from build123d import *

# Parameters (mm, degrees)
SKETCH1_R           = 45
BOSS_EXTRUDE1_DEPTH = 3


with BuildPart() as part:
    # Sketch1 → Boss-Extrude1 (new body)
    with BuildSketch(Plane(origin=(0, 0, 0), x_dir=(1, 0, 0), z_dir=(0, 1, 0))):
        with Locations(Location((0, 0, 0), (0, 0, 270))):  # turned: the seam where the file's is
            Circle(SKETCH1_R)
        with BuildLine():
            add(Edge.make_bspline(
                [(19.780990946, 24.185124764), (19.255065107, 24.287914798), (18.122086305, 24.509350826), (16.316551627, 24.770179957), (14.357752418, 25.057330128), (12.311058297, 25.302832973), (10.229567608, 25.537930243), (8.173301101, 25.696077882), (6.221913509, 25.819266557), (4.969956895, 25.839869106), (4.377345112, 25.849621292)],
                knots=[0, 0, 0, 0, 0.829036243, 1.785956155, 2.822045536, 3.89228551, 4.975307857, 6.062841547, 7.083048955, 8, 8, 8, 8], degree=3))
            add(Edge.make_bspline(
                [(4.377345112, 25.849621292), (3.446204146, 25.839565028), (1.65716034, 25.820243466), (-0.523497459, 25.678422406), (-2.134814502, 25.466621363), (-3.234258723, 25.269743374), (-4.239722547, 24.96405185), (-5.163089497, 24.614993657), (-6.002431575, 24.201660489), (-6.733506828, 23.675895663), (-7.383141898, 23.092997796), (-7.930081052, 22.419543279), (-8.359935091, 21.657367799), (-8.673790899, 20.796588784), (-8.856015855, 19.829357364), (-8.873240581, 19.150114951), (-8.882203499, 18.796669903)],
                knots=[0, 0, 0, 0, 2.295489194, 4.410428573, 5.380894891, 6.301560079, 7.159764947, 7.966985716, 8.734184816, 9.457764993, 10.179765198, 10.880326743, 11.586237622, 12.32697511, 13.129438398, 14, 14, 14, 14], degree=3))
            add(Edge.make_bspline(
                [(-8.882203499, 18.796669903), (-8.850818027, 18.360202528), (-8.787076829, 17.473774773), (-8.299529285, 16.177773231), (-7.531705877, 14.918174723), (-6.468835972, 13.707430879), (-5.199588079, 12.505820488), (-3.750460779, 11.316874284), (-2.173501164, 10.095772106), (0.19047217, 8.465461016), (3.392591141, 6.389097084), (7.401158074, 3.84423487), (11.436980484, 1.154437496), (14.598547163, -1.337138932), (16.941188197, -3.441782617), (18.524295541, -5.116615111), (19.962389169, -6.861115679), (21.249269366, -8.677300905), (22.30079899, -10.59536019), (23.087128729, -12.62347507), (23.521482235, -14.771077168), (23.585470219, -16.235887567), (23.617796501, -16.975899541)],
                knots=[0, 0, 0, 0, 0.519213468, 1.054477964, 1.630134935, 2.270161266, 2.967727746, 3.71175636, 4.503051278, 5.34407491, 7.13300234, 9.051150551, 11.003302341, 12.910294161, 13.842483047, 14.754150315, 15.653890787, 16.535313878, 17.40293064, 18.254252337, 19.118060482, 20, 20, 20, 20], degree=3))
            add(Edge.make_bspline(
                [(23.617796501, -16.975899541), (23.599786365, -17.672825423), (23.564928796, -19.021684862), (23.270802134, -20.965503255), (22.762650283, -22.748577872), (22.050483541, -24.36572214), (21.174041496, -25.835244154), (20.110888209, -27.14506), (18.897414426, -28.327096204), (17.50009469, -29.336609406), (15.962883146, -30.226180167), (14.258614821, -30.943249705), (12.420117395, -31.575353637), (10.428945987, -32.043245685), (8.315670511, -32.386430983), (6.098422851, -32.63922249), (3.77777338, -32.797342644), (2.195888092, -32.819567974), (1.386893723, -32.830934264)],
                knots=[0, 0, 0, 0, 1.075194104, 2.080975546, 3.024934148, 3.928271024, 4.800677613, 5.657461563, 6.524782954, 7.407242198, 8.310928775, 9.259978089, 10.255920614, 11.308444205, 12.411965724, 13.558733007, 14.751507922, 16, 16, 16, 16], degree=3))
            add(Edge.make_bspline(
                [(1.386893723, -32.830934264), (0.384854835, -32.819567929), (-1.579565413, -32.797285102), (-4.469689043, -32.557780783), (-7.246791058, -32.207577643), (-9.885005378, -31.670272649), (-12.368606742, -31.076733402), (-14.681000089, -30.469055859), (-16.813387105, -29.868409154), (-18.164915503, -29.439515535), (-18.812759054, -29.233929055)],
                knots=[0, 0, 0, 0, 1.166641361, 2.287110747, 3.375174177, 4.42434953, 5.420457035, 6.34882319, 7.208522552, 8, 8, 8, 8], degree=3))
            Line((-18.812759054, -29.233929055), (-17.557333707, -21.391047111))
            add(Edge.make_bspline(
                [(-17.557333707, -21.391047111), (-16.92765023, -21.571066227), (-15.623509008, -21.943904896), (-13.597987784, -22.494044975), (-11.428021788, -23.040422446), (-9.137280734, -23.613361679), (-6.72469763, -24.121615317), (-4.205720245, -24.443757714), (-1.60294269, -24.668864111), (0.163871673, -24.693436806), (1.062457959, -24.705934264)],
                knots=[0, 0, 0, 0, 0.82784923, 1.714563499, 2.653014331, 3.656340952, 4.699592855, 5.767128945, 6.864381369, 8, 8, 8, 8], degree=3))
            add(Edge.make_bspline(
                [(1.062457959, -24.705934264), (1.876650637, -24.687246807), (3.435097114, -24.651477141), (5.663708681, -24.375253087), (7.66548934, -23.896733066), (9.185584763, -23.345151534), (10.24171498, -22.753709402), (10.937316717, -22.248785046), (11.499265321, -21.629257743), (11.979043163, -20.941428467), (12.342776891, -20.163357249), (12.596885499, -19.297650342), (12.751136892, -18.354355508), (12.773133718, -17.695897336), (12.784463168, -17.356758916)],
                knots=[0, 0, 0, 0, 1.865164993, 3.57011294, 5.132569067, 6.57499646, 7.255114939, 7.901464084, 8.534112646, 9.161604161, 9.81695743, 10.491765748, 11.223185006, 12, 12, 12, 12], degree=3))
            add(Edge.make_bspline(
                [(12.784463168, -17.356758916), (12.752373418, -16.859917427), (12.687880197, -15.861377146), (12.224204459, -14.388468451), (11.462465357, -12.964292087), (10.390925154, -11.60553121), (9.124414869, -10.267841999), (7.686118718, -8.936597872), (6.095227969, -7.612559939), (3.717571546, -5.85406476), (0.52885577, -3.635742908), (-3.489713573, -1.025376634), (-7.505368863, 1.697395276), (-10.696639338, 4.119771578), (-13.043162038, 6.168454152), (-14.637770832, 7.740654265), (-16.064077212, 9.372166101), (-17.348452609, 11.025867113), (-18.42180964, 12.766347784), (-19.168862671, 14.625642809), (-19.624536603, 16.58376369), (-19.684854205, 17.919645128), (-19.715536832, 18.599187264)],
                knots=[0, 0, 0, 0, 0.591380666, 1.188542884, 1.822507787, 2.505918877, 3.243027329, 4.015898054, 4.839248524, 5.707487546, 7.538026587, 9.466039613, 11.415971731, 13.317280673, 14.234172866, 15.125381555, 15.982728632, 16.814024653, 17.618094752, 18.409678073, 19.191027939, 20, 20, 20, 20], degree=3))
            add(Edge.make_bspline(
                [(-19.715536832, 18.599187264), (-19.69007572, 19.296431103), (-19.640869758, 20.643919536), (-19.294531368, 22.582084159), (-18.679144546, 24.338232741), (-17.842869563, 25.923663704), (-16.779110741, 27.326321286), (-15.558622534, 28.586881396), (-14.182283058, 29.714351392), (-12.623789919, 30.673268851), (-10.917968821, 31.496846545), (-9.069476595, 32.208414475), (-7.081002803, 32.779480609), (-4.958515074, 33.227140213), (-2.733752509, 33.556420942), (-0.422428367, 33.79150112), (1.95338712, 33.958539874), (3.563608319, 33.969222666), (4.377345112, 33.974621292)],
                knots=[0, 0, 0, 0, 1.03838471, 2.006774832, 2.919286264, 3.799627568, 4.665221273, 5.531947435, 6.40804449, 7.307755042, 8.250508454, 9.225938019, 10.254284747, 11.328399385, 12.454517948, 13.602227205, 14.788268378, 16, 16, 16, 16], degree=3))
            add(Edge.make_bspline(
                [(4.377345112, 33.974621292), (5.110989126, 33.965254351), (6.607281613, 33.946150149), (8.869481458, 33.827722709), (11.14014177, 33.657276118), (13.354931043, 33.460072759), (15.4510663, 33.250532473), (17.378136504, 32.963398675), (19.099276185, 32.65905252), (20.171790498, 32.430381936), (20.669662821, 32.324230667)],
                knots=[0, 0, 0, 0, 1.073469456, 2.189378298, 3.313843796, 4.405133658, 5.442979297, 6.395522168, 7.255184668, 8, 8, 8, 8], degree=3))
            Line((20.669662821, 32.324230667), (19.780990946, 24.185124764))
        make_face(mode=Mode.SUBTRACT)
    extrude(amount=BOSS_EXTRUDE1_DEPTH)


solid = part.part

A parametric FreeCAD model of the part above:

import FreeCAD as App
import Part
import Sketcher

doc = App.newDocument("Part")
body = doc.addObject("PartDesign::Body", "Body")

sketch1 = body.newObject("Sketcher::SketchObject", "Sketch")
sketch1.AttachmentSupport = (doc.getObject("XZ_Plane"), [""])
sketch1.MapMode = "FlatFace"
sketch1.addGeometry([
    Part.Circle(App.Vector(0, 0, 0), App.Vector(0, 0, 1), 45),
    Part.LineSegment(App.Vector(20.669663, -32.324231, 0), App.Vector(19.780991, -24.185125, 0)),
    Part.BSplineCurve([App.Vector(19.780991, -24.185125, 0), App.Vector(19.255065, -24.287915, 0), App.Vector(18.122086, -24.509351, 0), App.Vector(16.316552, -24.77018, 0), App.Vector(14.357752, -25.05733, 0), App.Vector(12.311058, -25.302833, 0), App.Vector(10.229568, -25.53793, 0), App.Vector(8.173301, -25.696078, 0), App.Vector(6.221914, -25.819267, 0), App.Vector(4.969957, -25.839869, 0), App.Vector(4.377345, -25.849621, 0)], [4, 1, 1, 1, 1, 1, 1, 1, 4], [0, 0.829036243, 1.785956155, 2.822045536, 3.89228551, 4.975307857, 6.062841547, 7.083048955, 8], False, 3, [1, 1, 1, 1, 1, 1, 1, 1, 1, 1, 1], False),
    Part.BSplineCurve([App.Vector(4.377345, -25.849621, 0), App.Vector(3.446204, -25.839565, 0), App.Vector(1.65716, -25.820243, 0), App.Vector(-0.523497, -25.678422, 0), App.Vector(-2.134815, -25.466621, 0), App.Vector(-3.234259, -25.269743, 0), App.Vector(-4.239723, -24.964052, 0), App.Vector(-5.163089, -24.614994, 0), App.Vector(-6.002432, -24.20166, 0), App.Vector(-6.733507, -23.675896, 0), App.Vector(-7.383142, -23.092998, 0), App.Vector(-7.930081, -22.419543, 0), App.Vector(-8.359935, -21.657368, 0), App.Vector(-8.673791, -20.796589, 0), App.Vector(-8.856016, -19.829357, 0), App.Vector(-8.873241, -19.150115, 0), App.Vector(-8.882203, -18.79667, 0)], [4, 1, 1, 1, 1, 1, 1, 1, 1, 1, 1, 1, 1, 1, 4], [0, 2.295489194, 4.410428573, 5.380894891, 6.301560079, 7.159764947, 7.966985716, 8.734184816, 9.457764993, 10.179765198, 10.880326743, 11.586237622, 12.32697511, 13.129438398, 14], False, 3, [1, 1, 1, 1, 1, 1, 1, 1, 1, 1, 1, 1, 1, 1, 1, 1, 1], False),
    Part.BSplineCurve([App.Vector(-8.882203, -18.79667, 0), App.Vector(-8.850818, -18.360203, 0), App.Vector(-8.787077, -17.473775, 0), App.Vector(-8.299529, -16.177773, 0), App.Vector(-7.531706, -14.918175, 0), App.Vector(-6.468836, -13.707431, 0), App.Vector(-5.199588, -12.50582, 0), App.Vector(-3.750461, -11.316874, 0), App.Vector(-2.173501, -10.095772, 0), App.Vector(0.190472, -8.465461, 0), App.Vector(3.392591, -6.389097, 0), App.Vector(7.401158, -3.844235, 0), App.Vector(11.43698, -1.154437, 0), App.Vector(14.598547, 1.337139, 0), App.Vector(16.941188, 3.441783, 0), App.Vector(18.524296, 5.116615, 0), App.Vector(19.962389, 6.861116, 0), App.Vector(21.249269, 8.677301, 0), App.Vector(22.300799, 10.59536, 0), App.Vector(23.087129, 12.623475, 0), App.Vector(23.521482, 14.771077, 0), App.Vector(23.58547, 16.235888, 0), App.Vector(23.617797, 16.9759, 0)], [4, 1, 1, 1, 1, 1, 1, 1, 1, 1, 1, 1, 1, 1, 1, 1, 1, 1, 1, 1, 4], [0, 0.519213468, 1.054477964, 1.630134935, 2.270161266, 2.967727746, 3.71175636, 4.503051278, 5.34407491, 7.13300234, 9.051150551, 11.003302341, 12.910294161, 13.842483047, 14.754150315, 15.653890787, 16.535313878, 17.40293064, 18.254252337, 19.118060482, 20], False, 3, [1, 1, 1, 1, 1, 1, 1, 1, 1, 1, 1, 1, 1, 1, 1, 1, 1, 1, 1, 1, 1, 1, 1], False),
    Part.BSplineCurve([App.Vector(23.617797, 16.9759, 0), App.Vector(23.599786, 17.672825, 0), App.Vector(23.564929, 19.021685, 0), App.Vector(23.270802, 20.965503, 0), App.Vector(22.76265, 22.748578, 0), App.Vector(22.050484, 24.365722, 0), App.Vector(21.174041, 25.835244, 0), App.Vector(20.110888, 27.14506, 0), App.Vector(18.897414, 28.327096, 0), App.Vector(17.500095, 29.336609, 0), App.Vector(15.962883, 30.22618, 0), App.Vector(14.258615, 30.94325, 0), App.Vector(12.420117, 31.575354, 0), App.Vector(10.428946, 32.043246, 0), App.Vector(8.315671, 32.386431, 0), App.Vector(6.098423, 32.639222, 0), App.Vector(3.777773, 32.797343, 0), App.Vector(2.195888, 32.819568, 0), App.Vector(1.386894, 32.830934, 0)], [4, 1, 1, 1, 1, 1, 1, 1, 1, 1, 1, 1, 1, 1, 1, 1, 4], [0, 1.075194104, 2.080975546, 3.024934148, 3.928271024, 4.800677613, 5.657461563, 6.524782954, 7.407242198, 8.310928775, 9.259978089, 10.255920614, 11.308444205, 12.411965724, 13.558733007, 14.751507922, 16], False, 3, [1, 1, 1, 1, 1, 1, 1, 1, 1, 1, 1, 1, 1, 1, 1, 1, 1, 1, 1], False),
    Part.BSplineCurve([App.Vector(1.386894, 32.830934, 0), App.Vector(0.384855, 32.819568, 0), App.Vector(-1.579565, 32.797285, 0), App.Vector(-4.469689, 32.557781, 0), App.Vector(-7.246791, 32.207578, 0), App.Vector(-9.885005, 31.670273, 0), App.Vector(-12.368607, 31.076733, 0), App.Vector(-14.681, 30.469056, 0), App.Vector(-16.813387, 29.868409, 0), App.Vector(-18.164916, 29.439516, 0), App.Vector(-18.812759, 29.233929, 0)], [4, 1, 1, 1, 1, 1, 1, 1, 4], [0, 1.166641361, 2.287110747, 3.375174177, 4.42434953, 5.420457035, 6.34882319, 7.208522552, 8], False, 3, [1, 1, 1, 1, 1, 1, 1, 1, 1, 1, 1], False),
    Part.LineSegment(App.Vector(-18.812759, 29.233929, 0), App.Vector(-17.557334, 21.391047, 0)),
    Part.BSplineCurve([App.Vector(-17.557334, 21.391047, 0), App.Vector(-16.92765, 21.571066, 0), App.Vector(-15.623509, 21.943905, 0), App.Vector(-13.597988, 22.494045, 0), App.Vector(-11.428022, 23.040422, 0), App.Vector(-9.137281, 23.613362, 0), App.Vector(-6.724698, 24.121615, 0), App.Vector(-4.20572, 24.443758, 0), App.Vector(-1.602943, 24.668864, 0), App.Vector(0.163872, 24.693437, 0), App.Vector(1.062458, 24.705934, 0)], [4, 1, 1, 1, 1, 1, 1, 1, 4], [0, 0.82784923, 1.714563499, 2.653014331, 3.656340952, 4.699592855, 5.767128945, 6.864381369, 8], False, 3, [1, 1, 1, 1, 1, 1, 1, 1, 1, 1, 1], False),
    Part.BSplineCurve([App.Vector(1.062458, 24.705934, 0), App.Vector(1.876651, 24.687247, 0), App.Vector(3.435097, 24.651477, 0), App.Vector(5.663709, 24.375253, 0), App.Vector(7.665489, 23.896733, 0), App.Vector(9.185585, 23.345152, 0), App.Vector(10.241715, 22.753709, 0), App.Vector(10.937317, 22.248785, 0), App.Vector(11.499265, 21.629258, 0), App.Vector(11.979043, 20.941428, 0), App.Vector(12.342777, 20.163357, 0), App.Vector(12.596885, 19.29765, 0), App.Vector(12.751137, 18.354356, 0), App.Vector(12.773134, 17.695897, 0), App.Vector(12.784463, 17.356759, 0)], [4, 1, 1, 1, 1, 1, 1, 1, 1, 1, 1, 1, 4], [0, 1.865164993, 3.57011294, 5.132569067, 6.57499646, 7.255114939, 7.901464084, 8.534112646, 9.161604161, 9.81695743, 10.491765748, 11.223185006, 12], False, 3, [1, 1, 1, 1, 1, 1, 1, 1, 1, 1, 1, 1, 1, 1, 1], False),
    Part.BSplineCurve([App.Vector(12.784463, 17.356759, 0), App.Vector(12.752373, 16.859917, 0), App.Vector(12.68788, 15.861377, 0), App.Vector(12.224204, 14.388468, 0), App.Vector(11.462465, 12.964292, 0), App.Vector(10.390925, 11.605531, 0), App.Vector(9.124415, 10.267842, 0), App.Vector(7.686119, 8.936598, 0), App.Vector(6.095228, 7.61256, 0), App.Vector(3.717572, 5.854065, 0), App.Vector(0.528856, 3.635743, 0), App.Vector(-3.489714, 1.025377, 0), App.Vector(-7.505369, -1.697395, 0), App.Vector(-10.696639, -4.119772, 0), App.Vector(-13.043162, -6.168454, 0), App.Vector(-14.637771, -7.740654, 0), App.Vector(-16.064077, -9.372166, 0), App.Vector(-17.348453, -11.025867, 0), App.Vector(-18.42181, -12.766348, 0), App.Vector(-19.168863, -14.625643, 0), App.Vector(-19.624537, -16.583764, 0), App.Vector(-19.684854, -17.919645, 0), App.Vector(-19.715537, -18.599187, 0)], [4, 1, 1, 1, 1, 1, 1, 1, 1, 1, 1, 1, 1, 1, 1, 1, 1, 1, 1, 1, 4], [0, 0.591380666, 1.188542884, 1.822507787, 2.505918877, 3.243027329, 4.015898054, 4.839248524, 5.707487546, 7.538026587, 9.466039613, 11.415971731, 13.317280673, 14.234172866, 15.125381555, 15.982728632, 16.814024653, 17.618094752, 18.409678073, 19.191027939, 20], False, 3, [1, 1, 1, 1, 1, 1, 1, 1, 1, 1, 1, 1, 1, 1, 1, 1, 1, 1, 1, 1, 1, 1, 1], False),
    Part.BSplineCurve([App.Vector(-19.715537, -18.599187, 0), App.Vector(-19.690076, -19.296431, 0), App.Vector(-19.64087, -20.64392, 0), App.Vector(-19.294531, -22.582084, 0), App.Vector(-18.679145, -24.338233, 0), App.Vector(-17.84287, -25.923664, 0), App.Vector(-16.779111, -27.326321, 0), App.Vector(-15.558623, -28.586881, 0), App.Vector(-14.182283, -29.714351, 0), App.Vector(-12.62379, -30.673269, 0), App.Vector(-10.917969, -31.496847, 0), App.Vector(-9.069477, -32.208414, 0), App.Vector(-7.081003, -32.779481, 0), App.Vector(-4.958515, -33.22714, 0), App.Vector(-2.733753, -33.556421, 0), App.Vector(-0.422428, -33.791501, 0), App.Vector(1.953387, -33.95854, 0), App.Vector(3.563608, -33.969223, 0), App.Vector(4.377345, -33.974621, 0)], [4, 1, 1, 1, 1, 1, 1, 1, 1, 1, 1, 1, 1, 1, 1, 1, 4], [0, 1.03838471, 2.006774832, 2.919286264, 3.799627568, 4.665221273, 5.531947435, 6.40804449, 7.307755042, 8.250508454, 9.225938019, 10.254284747, 11.328399385, 12.454517948, 13.602227205, 14.788268378, 16], False, 3, [1, 1, 1, 1, 1, 1, 1, 1, 1, 1, 1, 1, 1, 1, 1, 1, 1, 1, 1], False),
    Part.BSplineCurve([App.Vector(4.377345, -33.974621, 0), App.Vector(5.110989, -33.965254, 0), App.Vector(6.607282, -33.94615, 0), App.Vector(8.869481, -33.827723, 0), App.Vector(11.140142, -33.657276, 0), App.Vector(13.354931, -33.460073, 0), App.Vector(15.451066, -33.250532, 0), App.Vector(17.378137, -32.963399, 0), App.Vector(19.099276, -32.659053, 0), App.Vector(20.17179, -32.430382, 0), App.Vector(20.669663, -32.324231, 0)], [4, 1, 1, 1, 1, 1, 1, 1, 4], [0, 1.073469456, 2.189378298, 3.313843796, 4.405133658, 5.442979297, 6.395522168, 7.255184668, 8], False, 3, [1, 1, 1, 1, 1, 1, 1, 1, 1, 1, 1], False),
], False)
sketch1.addConstraint([
    Sketcher.Constraint("Block", 2),
    Sketcher.Constraint("Block", 3),
    Sketcher.Constraint("Block", 4),
    Sketcher.Constraint("Block", 5),
    Sketcher.Constraint("Block", 6),
    Sketcher.Constraint("Block", 8),
    Sketcher.Constraint("Block", 9),
    Sketcher.Constraint("Block", 10),
    Sketcher.Constraint("Block", 11),
    Sketcher.Constraint("Block", 12),
    Sketcher.Constraint("Coincident", 1, 2, 2, 1),
    Sketcher.Constraint("Coincident", 6, 2, 7, 1),
    Sketcher.Constraint("Coincident", 7, 2, 8, 1),
    Sketcher.Constraint("Coincident", 12, 2, 1, 1),
    Sketcher.Constraint("Coincident", 0, 3, -1, 1),
    Sketcher.Constraint("Diameter", 0, 90.0),
])
pad1 = body.newObject("PartDesign::Pad", "Pad")
pad1.Profile = sketch1
pad1.Length = 3
pad1.Reversed = True

doc.recompute()
